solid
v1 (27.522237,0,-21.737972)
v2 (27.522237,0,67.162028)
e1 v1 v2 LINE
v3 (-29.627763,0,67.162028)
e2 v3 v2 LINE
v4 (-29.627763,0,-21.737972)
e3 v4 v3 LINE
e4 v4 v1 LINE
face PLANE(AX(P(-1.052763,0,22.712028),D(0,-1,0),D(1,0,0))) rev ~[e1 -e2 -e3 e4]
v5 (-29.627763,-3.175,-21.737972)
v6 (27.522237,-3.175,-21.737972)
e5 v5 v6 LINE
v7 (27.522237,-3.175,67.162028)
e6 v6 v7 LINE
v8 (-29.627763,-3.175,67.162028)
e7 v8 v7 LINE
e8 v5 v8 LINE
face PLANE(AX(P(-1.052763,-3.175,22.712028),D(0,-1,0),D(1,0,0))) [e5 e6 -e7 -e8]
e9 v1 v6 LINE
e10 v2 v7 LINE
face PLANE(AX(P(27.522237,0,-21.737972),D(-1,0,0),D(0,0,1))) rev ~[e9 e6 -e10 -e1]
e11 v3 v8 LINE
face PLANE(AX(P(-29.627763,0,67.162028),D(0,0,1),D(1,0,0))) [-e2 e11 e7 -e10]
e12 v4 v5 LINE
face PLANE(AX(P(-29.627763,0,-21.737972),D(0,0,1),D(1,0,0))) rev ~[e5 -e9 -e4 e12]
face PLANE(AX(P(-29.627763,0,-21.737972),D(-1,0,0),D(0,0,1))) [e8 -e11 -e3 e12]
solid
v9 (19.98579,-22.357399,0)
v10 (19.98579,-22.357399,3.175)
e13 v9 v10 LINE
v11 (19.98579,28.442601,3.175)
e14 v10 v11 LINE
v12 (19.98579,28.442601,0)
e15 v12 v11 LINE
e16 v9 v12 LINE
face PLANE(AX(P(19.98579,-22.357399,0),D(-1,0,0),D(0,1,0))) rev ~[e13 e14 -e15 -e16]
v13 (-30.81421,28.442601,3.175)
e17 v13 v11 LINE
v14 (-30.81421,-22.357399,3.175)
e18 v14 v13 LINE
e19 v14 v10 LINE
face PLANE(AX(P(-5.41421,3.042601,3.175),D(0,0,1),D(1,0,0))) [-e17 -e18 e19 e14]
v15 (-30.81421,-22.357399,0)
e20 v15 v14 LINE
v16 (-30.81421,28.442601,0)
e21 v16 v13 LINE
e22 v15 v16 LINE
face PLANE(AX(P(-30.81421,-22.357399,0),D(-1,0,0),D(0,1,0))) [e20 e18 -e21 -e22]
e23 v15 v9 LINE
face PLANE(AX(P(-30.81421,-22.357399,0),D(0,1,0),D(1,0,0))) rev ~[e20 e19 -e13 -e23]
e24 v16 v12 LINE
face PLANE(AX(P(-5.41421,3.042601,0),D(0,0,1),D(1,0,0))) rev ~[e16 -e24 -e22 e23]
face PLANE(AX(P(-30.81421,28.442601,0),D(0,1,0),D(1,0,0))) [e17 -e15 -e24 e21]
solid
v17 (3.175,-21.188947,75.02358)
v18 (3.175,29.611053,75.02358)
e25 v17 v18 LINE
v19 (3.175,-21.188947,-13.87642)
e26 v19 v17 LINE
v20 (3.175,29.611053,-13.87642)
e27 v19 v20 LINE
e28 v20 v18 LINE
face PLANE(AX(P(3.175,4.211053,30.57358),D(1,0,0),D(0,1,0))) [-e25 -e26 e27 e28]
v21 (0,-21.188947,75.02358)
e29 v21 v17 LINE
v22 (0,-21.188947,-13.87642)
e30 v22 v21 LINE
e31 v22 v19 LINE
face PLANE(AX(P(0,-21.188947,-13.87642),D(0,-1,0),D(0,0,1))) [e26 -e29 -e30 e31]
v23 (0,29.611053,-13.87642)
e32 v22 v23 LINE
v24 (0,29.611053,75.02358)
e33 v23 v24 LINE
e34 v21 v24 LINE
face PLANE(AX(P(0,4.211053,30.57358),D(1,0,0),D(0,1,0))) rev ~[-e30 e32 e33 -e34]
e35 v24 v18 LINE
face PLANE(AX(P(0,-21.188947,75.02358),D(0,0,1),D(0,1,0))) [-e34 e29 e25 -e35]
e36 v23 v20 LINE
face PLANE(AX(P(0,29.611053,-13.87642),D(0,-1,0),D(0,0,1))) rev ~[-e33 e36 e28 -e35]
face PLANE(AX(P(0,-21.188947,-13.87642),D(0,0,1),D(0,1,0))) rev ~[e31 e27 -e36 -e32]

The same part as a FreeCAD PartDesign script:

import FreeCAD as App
import Part
import Sketcher
Q = App.Units.Quantity


def add_polygon(sketch, points):
    """Adds a closed chain of lines whose ends are joined by coincident constraints."""
    first, n = sketch.GeometryCount, len(points)
    for a, b in zip(points, points[1:] + points[:1]):
        sketch.addGeometry(Part.LineSegment(App.Vector(*a, 0), App.Vector(*b, 0)), False)
    for i in range(n):
        sketch.addConstraint(Sketcher.Constraint("Coincident", first + i, 2, first + (i + 1) % n, 1))

doc = App.newDocument("Part")
body = doc.addObject("PartDesign::Body", "Body")

sketch1 = body.newObject("Sketcher::SketchObject", "Sketch")
sketch1.AttachmentSupport = (doc.getObject("XZ_Plane"), [""])
sketch1.MapMode = "FlatFace"
add_polygon(sketch1, [(-30, 67), (-30, -22), (28, -22), (28, 67)])
sketch1.addConstraint([
    Sketcher.Constraint("Vertical", 0),
    Sketcher.Constraint("Horizontal", 1),
    Sketcher.Constraint("Vertical", 2),
    Sketcher.Constraint("Horizontal", 3),
    Sketcher.Constraint("DistanceY", 0, 2, 0, 1, Q("3.5 in")),
    Sketcher.Constraint("DistanceX", 1, 1, 1, 2, Q("2.25 in")),
    Sketcher.Constraint("DistanceY", 0, 2, -1, 1, 21.737972),
    Sketcher.Constraint("DistanceX", 0, 2, -1, 1, 29.627763),
])
pad1 = body.newObject("PartDesign::Pad", "Pad")
pad1.Profile = sketch1
pad1.Length = Q("0.125 in")
body2 = doc.addObject("PartDesign::Body", "Body001")

sketch2 = body2.newObject("Sketcher::SketchObject", "Sketch001")
sketch2.AttachmentSupport = (doc.getObject("YZ_Plane001"), [""])
sketch2.MapMode = "FlatFace"
add_polygon(sketch2, [(-21, 75), (-21, -14), (30, -14), (30, 75)])
sketch2.addConstraint([
    Sketcher.Constraint("Vertical", 0),
    Sketcher.Constraint("Horizontal", 1),
    Sketcher.Constraint("Vertical", 2),
    Sketcher.Constraint("Horizontal", 3),
    Sketcher.Constraint("DistanceX", 1, 1, 1, 2, Q("2 in")),
    Sketcher.Constraint("DistanceY", 0, 2, 0, 1, Q("3.5 in")),
    Sketcher.Constraint("DistanceY", 0, 2, -1, 1, 13.87642),
    Sketcher.Constraint("DistanceX", 0, 2, -1, 1, 21.188947),
])
pad2 = body2.newObject("PartDesign::Pad", "Pad001")
pad2.Profile = sketch2
pad2.Length = Q("0.125 in")
body3 = doc.addObject("PartDesign::Body", "Body002")

sketch3 = body3.newObject("Sketcher::SketchObject", "Sketch002")
sketch3.AttachmentSupport = (doc.getObject("XY_Plane002"), [""])
sketch3.MapMode = "FlatFace"
add_polygon(sketch3, [(-31, 28), (-31, -22), (20, -22), (20, 28)])
sketch3.addConstraint([
    Sketcher.Constraint("Vertical", 0),
    Sketcher.Constraint("Horizontal", 1),
    Sketcher.Constraint("Vertical", 2),
    Sketcher.Constraint("Horizontal", 3),
    Sketcher.Constraint("Equal", 3, 0),
    Sketcher.Constraint("DistanceX", 1, 1, 1, 2, Q("2 in")),
    Sketcher.Constraint("DistanceY", 0, 2, -1, 1, 22.357399),
    Sketcher.Constraint("DistanceX", 0, 2, -1, 1, 30.81421),
])
pad3 = body3.newObject("PartDesign::Pad", "Pad002")
pad3.Profile = sketch3
pad3.Length = Q("0.125 in")

doc.recompute()
